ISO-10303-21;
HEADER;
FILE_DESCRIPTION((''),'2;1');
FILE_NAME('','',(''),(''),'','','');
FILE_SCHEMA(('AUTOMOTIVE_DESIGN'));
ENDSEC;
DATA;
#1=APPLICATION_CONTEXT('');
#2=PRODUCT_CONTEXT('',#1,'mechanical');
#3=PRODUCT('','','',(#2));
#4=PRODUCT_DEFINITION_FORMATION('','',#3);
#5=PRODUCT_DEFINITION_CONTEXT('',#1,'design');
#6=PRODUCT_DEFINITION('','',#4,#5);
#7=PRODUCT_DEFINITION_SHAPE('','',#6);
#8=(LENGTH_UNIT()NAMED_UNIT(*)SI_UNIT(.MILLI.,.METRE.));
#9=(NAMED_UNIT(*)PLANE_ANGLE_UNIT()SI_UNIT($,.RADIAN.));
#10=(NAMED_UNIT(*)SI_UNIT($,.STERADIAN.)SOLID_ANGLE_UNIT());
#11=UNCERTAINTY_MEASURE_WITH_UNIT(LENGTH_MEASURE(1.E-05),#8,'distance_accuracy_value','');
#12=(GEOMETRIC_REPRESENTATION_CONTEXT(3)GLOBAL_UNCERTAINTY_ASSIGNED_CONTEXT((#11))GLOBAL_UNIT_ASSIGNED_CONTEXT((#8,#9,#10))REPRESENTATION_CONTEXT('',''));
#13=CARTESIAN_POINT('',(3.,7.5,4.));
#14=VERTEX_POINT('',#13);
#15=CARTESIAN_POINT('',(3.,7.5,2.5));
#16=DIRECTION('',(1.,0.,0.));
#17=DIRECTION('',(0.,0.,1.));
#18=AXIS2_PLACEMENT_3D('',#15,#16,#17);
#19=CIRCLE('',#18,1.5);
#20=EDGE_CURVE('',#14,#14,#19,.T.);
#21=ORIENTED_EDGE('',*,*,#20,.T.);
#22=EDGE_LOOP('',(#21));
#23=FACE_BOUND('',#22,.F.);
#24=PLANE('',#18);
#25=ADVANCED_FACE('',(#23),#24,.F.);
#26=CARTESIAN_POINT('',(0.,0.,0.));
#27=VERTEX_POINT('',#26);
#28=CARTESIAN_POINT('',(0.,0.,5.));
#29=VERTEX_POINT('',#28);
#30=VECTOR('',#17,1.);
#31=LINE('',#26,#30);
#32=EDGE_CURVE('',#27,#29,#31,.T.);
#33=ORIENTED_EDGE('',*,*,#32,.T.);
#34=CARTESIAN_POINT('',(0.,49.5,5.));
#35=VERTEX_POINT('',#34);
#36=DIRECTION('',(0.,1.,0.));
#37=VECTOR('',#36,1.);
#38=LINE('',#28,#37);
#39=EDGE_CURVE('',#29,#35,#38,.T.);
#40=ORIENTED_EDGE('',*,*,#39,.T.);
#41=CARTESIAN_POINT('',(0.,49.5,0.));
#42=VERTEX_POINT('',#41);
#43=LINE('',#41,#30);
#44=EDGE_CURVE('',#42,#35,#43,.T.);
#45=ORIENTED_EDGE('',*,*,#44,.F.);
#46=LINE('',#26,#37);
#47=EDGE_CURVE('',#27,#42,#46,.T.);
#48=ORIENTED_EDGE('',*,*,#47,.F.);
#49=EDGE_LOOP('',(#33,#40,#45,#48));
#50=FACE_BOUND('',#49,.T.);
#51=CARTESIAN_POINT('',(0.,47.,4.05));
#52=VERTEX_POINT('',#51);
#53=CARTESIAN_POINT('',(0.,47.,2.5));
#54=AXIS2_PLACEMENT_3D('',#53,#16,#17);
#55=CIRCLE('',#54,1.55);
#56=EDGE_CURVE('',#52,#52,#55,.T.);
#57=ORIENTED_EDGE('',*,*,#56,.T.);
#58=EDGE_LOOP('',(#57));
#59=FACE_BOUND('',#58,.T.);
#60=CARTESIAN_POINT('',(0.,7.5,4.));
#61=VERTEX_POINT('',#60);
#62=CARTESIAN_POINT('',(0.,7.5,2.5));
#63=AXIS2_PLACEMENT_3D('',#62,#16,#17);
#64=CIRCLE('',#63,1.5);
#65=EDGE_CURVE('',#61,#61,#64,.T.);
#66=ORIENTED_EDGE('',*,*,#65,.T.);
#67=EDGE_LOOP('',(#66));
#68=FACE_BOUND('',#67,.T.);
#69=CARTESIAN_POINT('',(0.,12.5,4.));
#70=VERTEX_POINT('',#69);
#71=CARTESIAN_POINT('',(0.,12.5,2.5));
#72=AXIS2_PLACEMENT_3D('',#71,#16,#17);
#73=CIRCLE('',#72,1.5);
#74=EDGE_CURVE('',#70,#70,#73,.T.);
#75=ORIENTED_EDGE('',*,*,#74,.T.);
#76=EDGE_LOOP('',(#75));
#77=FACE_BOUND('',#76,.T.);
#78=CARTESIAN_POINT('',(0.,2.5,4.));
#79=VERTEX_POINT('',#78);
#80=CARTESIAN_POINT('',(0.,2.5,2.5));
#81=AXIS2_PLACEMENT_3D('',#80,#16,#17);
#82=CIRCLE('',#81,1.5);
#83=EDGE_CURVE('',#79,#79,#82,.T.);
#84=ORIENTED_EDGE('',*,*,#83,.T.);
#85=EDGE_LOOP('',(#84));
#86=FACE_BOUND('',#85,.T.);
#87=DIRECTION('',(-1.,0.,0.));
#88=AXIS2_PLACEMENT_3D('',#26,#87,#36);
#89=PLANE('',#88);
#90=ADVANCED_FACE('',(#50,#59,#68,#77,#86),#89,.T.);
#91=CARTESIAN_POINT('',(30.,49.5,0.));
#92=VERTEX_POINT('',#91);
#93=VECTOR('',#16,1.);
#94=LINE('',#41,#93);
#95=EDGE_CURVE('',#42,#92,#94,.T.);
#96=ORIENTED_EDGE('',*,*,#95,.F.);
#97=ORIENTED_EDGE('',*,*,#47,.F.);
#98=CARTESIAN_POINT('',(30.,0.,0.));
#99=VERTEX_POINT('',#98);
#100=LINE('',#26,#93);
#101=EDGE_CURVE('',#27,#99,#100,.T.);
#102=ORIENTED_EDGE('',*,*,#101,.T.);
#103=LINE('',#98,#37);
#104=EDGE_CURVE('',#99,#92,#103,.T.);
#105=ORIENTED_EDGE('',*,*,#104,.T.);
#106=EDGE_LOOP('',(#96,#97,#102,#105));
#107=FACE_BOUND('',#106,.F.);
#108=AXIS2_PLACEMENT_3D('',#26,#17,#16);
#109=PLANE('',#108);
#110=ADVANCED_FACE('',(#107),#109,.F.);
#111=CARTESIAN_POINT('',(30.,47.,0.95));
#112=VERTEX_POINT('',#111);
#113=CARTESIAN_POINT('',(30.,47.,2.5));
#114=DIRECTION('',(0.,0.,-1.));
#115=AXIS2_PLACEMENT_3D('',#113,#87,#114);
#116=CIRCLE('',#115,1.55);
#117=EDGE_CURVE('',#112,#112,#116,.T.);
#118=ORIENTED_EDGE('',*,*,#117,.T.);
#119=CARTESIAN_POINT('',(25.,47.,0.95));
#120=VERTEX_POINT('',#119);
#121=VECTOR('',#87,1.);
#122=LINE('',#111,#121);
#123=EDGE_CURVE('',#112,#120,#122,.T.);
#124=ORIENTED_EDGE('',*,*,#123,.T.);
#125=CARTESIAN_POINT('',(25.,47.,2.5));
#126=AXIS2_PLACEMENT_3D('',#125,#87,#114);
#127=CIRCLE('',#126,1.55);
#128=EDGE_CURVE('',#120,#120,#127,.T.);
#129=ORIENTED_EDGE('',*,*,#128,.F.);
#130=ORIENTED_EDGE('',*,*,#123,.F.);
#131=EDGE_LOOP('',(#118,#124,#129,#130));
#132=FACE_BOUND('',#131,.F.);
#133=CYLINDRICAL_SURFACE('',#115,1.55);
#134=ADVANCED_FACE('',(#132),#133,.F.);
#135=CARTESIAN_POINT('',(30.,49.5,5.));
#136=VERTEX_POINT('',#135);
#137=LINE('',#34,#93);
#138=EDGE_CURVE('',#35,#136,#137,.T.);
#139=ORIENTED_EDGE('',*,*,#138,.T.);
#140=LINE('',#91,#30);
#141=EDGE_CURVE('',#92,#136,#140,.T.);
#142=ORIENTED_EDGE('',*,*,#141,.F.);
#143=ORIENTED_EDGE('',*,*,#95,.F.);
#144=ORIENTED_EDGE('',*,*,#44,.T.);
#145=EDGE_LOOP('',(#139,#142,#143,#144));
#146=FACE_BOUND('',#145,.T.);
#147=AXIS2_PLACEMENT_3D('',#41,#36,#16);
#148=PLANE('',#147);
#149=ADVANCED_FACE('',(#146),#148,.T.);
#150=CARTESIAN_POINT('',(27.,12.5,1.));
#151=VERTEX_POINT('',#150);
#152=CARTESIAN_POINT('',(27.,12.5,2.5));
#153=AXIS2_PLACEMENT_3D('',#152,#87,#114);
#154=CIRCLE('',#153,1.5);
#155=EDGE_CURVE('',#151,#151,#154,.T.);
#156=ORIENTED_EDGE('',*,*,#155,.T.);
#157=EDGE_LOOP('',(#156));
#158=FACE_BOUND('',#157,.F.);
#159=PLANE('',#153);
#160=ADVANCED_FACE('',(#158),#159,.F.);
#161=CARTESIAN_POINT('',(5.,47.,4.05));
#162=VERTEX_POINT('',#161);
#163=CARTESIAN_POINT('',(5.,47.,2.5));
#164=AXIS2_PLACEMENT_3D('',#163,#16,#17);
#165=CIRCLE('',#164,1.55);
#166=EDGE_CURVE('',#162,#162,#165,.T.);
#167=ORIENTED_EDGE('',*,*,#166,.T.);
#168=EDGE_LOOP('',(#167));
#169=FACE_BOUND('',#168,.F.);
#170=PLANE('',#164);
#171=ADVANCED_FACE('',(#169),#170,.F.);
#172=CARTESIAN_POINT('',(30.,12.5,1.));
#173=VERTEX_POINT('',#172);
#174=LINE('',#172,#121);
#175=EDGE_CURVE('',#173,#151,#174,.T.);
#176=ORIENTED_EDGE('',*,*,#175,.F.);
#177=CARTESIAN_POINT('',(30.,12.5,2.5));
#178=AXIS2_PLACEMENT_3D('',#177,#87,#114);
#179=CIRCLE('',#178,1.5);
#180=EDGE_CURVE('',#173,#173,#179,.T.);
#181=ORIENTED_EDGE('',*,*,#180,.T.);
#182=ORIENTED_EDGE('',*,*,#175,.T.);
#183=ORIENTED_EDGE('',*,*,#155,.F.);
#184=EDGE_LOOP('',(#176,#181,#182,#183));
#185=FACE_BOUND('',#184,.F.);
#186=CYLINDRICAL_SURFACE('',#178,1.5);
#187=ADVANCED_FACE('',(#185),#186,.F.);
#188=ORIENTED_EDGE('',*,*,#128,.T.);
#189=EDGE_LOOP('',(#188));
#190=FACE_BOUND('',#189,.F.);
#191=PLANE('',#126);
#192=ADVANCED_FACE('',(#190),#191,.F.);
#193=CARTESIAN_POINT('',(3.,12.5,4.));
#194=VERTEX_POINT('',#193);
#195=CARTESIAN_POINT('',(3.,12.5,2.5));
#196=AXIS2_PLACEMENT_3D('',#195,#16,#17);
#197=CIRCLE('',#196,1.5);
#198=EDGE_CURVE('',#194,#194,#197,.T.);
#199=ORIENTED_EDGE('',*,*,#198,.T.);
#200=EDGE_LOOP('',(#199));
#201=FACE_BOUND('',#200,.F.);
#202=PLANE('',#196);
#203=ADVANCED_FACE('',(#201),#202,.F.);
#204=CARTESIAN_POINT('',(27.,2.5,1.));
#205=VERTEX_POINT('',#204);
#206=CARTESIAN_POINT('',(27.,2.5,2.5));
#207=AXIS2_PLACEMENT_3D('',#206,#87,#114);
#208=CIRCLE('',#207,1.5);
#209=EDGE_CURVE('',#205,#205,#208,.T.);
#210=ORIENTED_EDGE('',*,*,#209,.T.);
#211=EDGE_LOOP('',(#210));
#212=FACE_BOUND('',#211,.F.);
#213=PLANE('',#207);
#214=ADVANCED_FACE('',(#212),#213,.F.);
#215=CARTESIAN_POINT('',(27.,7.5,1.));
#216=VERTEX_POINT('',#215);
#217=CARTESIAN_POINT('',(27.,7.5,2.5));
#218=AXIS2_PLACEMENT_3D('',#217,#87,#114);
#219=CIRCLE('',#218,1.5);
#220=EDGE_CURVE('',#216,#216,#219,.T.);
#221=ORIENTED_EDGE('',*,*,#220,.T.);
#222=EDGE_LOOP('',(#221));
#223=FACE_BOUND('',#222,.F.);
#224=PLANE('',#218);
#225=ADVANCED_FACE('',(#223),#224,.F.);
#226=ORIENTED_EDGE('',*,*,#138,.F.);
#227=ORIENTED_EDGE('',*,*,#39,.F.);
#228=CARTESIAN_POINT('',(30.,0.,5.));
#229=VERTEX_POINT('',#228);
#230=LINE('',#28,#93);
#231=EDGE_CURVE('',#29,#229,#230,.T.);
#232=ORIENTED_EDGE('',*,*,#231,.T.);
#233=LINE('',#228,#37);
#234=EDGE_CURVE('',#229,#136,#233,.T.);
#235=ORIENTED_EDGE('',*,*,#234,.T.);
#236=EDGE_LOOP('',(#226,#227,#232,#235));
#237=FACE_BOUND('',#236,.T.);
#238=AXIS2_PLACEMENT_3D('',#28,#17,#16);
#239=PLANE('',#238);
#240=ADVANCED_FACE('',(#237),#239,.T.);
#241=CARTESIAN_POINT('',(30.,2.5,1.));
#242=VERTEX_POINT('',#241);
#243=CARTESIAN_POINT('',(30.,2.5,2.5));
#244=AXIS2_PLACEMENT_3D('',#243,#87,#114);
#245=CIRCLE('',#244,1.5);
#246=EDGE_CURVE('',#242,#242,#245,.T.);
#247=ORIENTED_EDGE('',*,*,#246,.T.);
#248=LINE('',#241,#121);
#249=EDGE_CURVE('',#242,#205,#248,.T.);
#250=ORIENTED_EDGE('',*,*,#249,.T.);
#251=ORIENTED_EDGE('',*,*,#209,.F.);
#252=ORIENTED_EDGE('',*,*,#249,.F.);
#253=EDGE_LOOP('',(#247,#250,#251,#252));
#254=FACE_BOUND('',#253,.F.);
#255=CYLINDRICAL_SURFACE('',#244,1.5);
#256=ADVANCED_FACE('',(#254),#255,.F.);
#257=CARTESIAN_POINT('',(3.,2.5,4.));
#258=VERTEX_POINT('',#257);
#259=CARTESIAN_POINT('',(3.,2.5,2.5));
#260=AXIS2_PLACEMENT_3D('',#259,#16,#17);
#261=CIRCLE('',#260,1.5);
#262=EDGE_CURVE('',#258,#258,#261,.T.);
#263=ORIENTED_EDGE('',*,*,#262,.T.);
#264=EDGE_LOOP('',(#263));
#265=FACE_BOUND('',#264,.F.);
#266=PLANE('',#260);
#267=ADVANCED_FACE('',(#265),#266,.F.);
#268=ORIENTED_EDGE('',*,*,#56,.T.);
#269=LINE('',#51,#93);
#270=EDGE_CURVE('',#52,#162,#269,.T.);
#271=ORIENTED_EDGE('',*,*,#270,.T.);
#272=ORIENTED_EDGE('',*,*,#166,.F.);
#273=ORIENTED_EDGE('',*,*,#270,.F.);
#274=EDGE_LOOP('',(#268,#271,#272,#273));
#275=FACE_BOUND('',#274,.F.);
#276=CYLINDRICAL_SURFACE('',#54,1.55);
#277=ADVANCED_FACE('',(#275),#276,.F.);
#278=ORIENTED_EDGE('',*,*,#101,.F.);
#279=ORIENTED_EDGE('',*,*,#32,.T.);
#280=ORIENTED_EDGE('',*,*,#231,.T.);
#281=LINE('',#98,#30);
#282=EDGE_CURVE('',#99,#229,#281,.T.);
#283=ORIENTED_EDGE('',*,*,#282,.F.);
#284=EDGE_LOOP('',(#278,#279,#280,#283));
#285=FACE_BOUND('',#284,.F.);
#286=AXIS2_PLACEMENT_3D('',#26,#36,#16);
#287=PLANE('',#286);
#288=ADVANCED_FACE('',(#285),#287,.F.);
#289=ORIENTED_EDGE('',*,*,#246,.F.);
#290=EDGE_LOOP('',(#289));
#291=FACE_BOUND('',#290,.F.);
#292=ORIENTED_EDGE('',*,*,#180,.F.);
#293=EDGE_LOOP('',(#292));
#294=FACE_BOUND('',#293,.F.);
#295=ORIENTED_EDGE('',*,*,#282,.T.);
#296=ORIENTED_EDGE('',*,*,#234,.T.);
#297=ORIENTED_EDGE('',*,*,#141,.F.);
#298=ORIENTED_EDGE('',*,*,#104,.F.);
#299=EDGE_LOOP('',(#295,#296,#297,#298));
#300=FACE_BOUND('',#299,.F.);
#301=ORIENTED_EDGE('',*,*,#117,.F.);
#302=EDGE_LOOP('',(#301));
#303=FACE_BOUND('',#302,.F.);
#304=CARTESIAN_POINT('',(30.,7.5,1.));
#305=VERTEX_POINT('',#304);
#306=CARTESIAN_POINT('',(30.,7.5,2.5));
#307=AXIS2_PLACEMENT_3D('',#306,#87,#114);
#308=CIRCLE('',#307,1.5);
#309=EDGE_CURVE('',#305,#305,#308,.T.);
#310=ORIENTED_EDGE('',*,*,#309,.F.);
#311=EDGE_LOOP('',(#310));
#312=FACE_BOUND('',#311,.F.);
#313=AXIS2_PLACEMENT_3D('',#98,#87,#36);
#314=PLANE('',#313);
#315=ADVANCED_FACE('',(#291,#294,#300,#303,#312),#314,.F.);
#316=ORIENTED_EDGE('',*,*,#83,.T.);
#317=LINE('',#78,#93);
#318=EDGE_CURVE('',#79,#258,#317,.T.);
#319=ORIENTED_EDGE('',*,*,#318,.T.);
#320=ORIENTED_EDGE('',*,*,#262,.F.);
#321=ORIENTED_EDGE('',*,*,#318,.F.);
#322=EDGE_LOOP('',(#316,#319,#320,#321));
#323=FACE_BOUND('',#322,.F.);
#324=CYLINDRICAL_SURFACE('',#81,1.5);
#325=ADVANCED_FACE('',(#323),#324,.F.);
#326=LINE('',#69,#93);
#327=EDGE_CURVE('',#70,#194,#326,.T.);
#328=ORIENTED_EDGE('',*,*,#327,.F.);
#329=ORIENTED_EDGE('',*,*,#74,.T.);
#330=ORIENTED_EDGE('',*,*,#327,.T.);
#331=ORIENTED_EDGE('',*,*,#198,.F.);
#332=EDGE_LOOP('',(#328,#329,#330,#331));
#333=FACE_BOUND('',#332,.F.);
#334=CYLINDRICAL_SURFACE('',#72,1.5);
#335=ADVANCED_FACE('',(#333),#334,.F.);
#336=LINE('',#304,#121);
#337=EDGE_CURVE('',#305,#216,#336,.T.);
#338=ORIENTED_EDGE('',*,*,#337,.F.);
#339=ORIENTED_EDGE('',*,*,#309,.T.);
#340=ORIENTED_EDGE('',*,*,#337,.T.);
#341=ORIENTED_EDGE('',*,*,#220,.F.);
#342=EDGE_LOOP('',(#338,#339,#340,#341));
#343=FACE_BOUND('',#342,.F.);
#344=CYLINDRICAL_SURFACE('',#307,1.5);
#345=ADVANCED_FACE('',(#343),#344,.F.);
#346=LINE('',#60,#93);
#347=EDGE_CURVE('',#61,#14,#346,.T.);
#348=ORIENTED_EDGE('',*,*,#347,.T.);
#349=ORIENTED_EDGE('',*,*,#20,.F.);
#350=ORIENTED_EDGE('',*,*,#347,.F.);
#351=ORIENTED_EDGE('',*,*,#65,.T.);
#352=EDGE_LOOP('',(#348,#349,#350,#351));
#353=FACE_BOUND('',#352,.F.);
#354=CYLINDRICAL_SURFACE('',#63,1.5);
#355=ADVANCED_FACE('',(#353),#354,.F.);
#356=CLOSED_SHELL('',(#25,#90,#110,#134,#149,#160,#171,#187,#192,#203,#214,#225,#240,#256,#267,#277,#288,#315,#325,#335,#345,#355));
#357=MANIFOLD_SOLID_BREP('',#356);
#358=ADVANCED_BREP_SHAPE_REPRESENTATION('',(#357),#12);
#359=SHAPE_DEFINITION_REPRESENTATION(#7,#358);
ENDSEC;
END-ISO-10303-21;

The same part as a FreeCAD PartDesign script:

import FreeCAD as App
import Part
import Sketcher

doc = App.newDocument("Part")
body = doc.addObject("PartDesign::Body", "Body")

# Sketch on XY plane
sketch1 = body.newObject("Sketcher::SketchObject", "Sketch")
sketch1.AttachmentSupport = (doc.getObject("XY_Plane"), [""])
sketch1.MapMode = "FlatFace"
sketch1.addGeometry(Part.LineSegment(App.Vector(30, 50, 0), App.Vector(0, 50, 0)), False)
sketch1.addGeometry(Part.LineSegment(App.Vector(0, 50, 0), App.Vector(0, 0, 0)), False)
sketch1.addGeometry(Part.LineSegment(App.Vector(0, 0, 0), App.Vector(30, 0, 0)), False)
sketch1.addGeometry(Part.LineSegment(App.Vector(30, 0, 0), App.Vector(30, 50, 0)), False)
sketch1.addConstraint(Sketcher.Constraint("Coincident", 0, 2, 1, 1))
sketch1.addConstraint(Sketcher.Constraint("Coincident", 1, 2, 2, 1))
sketch1.addConstraint(Sketcher.Constraint("Coincident", 2, 2, 3, 1))
sketch1.addConstraint(Sketcher.Constraint("Coincident", 3, 2, 0, 1))
sketch1.addConstraint(Sketcher.Constraint("Horizontal", 0))
sketch1.addConstraint(Sketcher.Constraint("Vertical", 1))
sketch1.addConstraint(Sketcher.Constraint("Horizontal", 2))
sketch1.addConstraint(Sketcher.Constraint("Vertical", 3))
sketch1.addConstraint(Sketcher.Constraint("Coincident", 1, 2, -1, 1))
sketch1.addConstraint(Sketcher.Constraint("DistanceX", 0, 2, 0, 1, 30.0))
sketch1.addConstraint(Sketcher.Constraint("DistanceY", 1, 2, 1, 1, 49.5))
pad1 = body.newObject("PartDesign::Pad", "Pad")
pad1.Profile = sketch1
pad1.Length = 5

# Sketch on YZ plane
sketch2 = body.newObject("Sketcher::SketchObject", "Sketch001")
sketch2.AttachmentSupport = (doc.getObject("YZ_Plane"), [""])
sketch2.MapMode = "FlatFace"
sketch2.AttachmentOffset = App.Placement(App.Vector(0, 0, 30), App.Rotation())
sketch2.addGeometry(Part.Circle(App.Vector(47, 2.5, 0), App.Vector(0, 0, 1), 1.6), False)
sketch2.addConstraint(Sketcher.Constraint("Diameter", 0, 3.1))
sketch2.addConstraint(Sketcher.Constraint("DistanceX", -1, 1, 0, 3, 47.0))
sketch2.addConstraint(Sketcher.Constraint("DistanceY", -1, 1, 0, 3, 2.5))
doc.recompute()
hole = body.newObject("PartDesign::Hole", "Hole")
hole.Profile = sketch2
hole.ThreadType = "None"
hole.Diameter = 3.1
hole.DepthType = "Dimension"
hole.Depth = 5
hole.DrillPoint = "Flat"

# Sketch on YZ plane
sketch3 = body.newObject("Sketcher::SketchObject", "Sketch002")
sketch3.AttachmentSupport = (doc.getObject("YZ_Plane"), [""])
sketch3.MapMode = "FlatFace"
sketch3.addGeometry(Part.Circle(App.Vector(47, 2.5, 0), App.Vector(0, 0, 1), 1.6), False)
sketch3.addConstraint(Sketcher.Constraint("Diameter", 0, 3.1))
sketch3.addConstraint(Sketcher.Constraint("DistanceX", -1, 1, 0, 3, 47.0))
sketch3.addConstraint(Sketcher.Constraint("DistanceY", -1, 1, 0, 3, 2.5))
doc.recompute()
hole2 = body.newObject("PartDesign::Hole", "Hole001")
hole2.Profile = sketch3
hole2.ThreadType = "None"
hole2.Diameter = 3.1
hole2.DepthType = "Dimension"
hole2.Depth = 5
hole2.DrillPoint = "Flat"
hole2.Reversed = True

# Sketch on YZ plane
sketch4 = body.newObject("Sketcher::SketchObject", "Sketch003")
sketch4.AttachmentSupport = (doc.getObject("YZ_Plane"), [""])
sketch4.MapMode = "FlatFace"
sketch4.AttachmentOffset = App.Placement(App.Vector(0, 0, 30), App.Rotation())
sketch4.addGeometry(Part.Circle(App.Vector(2.5, 2.5, 0), App.Vector(0, 0, 1), 1.5), False)
sketch4.addGeometry(Part.Circle(App.Vector(12.5, 2.5, 0), App.Vector(0, 0, 1), 1.5), False)
sketch4.addGeometry(Part.Circle(App.Vector(7.5, 2.5, 0), App.Vector(0, 0, 1), 1.5), False)
sketch4.addConstraint(Sketcher.Constraint("Equal", 0, 1))
sketch4.addConstraint(Sketcher.Constraint("Equal", 1, 2))
sketch4.addConstraint(Sketcher.Constraint("Horizontal", 0, 3, 1, 3))
sketch4.addConstraint(Sketcher.Constraint("Horizontal", 1, 3, 2, 3))
sketch4.addConstraint(Sketcher.Constraint("Diameter", 0, 3.0))
sketch4.addConstraint(Sketcher.Constraint("DistanceX", 0, 3, 1, 3, 10.0))
sketch4.addConstraint(Sketcher.Constraint("DistanceX", 0, 3, 2, 3, 5.0))
sketch4.addConstraint(Sketcher.Constraint("DistanceX", -1, 1, 0, 3, 2.5))
sketch4.addConstraint(Sketcher.Constraint("DistanceY", -1, 1, 0, 3, 2.5))
doc.recompute()
hole3 = body.newObject("PartDesign::Hole", "Hole002")
hole3.Profile = sketch4
hole3.ThreadType = "None"
hole3.Diameter = 3
hole3.DepthType = "Dimension"
hole3.Depth = 3
hole3.DrillPoint = "Flat"

# Sketch on YZ plane
sketch5 = body.newObject("Sketcher::SketchObject", "Sketch004")
sketch5.AttachmentSupport = (doc.getObject("YZ_Plane"), [""])
sketch5.MapMode = "FlatFace"
sketch5.addGeometry(Part.Circle(App.Vector(2.5, 2.5, 0), App.Vector(0, 0, 1), 1.5), False)
sketch5.addGeometry(Part.Circle(App.Vector(7.5, 2.5, 0), App.Vector(0, 0, 1), 1.5), False)
sketch5.addGeometry(Part.Circle(App.Vector(12.5, 2.5, 0), App.Vector(0, 0, 1), 1.5), False)
sketch5.addConstraint(Sketcher.Constraint("Equal", 0, 1))
sketch5.addConstraint(Sketcher.Constraint("Equal", 1, 2))
sketch5.addConstraint(Sketcher.Constraint("Horizontal", 0, 3, 1, 3))
sketch5.addConstraint(Sketcher.Constraint("Horizontal", 1, 3, 2, 3))
sketch5.addConstraint(Sketcher.Constraint("Diameter", 0, 3.0))
sketch5.addConstraint(Sketcher.Constraint("DistanceX", 0, 3, 1, 3, 5.0))
sketch5.addConstraint(Sketcher.Constraint("DistanceX", 1, 3, 2, 3, 5.0))
sketch5.addConstraint(Sketcher.Constraint("DistanceX", -1, 1, 0, 3, 2.5))
sketch5.addConstraint(Sketcher.Constraint("DistanceY", -1, 1, 0, 3, 2.5))
doc.recompute()
hole4 = body.newObject("PartDesign::Hole", "Hole003")
hole4.Profile = sketch5
hole4.ThreadType = "None"
hole4.Diameter = 3
hole4.DepthType = "Dimension"
hole4.Depth = 3
hole4.DrillPoint = "Flat"
hole4.Reversed = True

doc.recompute()
